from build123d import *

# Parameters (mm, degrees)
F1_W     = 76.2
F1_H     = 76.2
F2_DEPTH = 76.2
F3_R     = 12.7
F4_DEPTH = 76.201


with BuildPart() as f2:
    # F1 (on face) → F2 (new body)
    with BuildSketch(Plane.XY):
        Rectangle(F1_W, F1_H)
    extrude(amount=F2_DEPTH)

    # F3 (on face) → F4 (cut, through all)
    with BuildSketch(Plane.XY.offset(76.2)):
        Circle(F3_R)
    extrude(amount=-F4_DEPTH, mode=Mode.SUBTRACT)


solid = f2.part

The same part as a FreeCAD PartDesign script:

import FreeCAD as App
import Part
import Sketcher
Q = App.Units.Quantity


def add_polygon(sketch, points):
    """Adds a closed chain of lines whose ends are joined by coincident constraints."""
    first, n = sketch.GeometryCount, len(points)
    for a, b in zip(points, points[1:] + points[:1]):
        sketch.addGeometry(Part.LineSegment(App.Vector(*a, 0), App.Vector(*b, 0)), False)
    for i in range(n):
        sketch.addConstraint(Sketcher.Constraint("Coincident", first + i, 2, first + (i + 1) % n, 1))

doc = App.newDocument("Part")
body = doc.addObject("PartDesign::Body", "Body")

sketch1 = doc.addObject("Sketcher::SketchObject", "Sketch")
body.addObject(sketch1)
sketch1.AttachmentSupport = (doc.XY_Plane, [""])
sketch1.MapMode = "FlatFace"
add_polygon(sketch1, [(-38, 38), (-38, -38), (38, -38), (38, 38)])
sketch1.addConstraint([
    Sketcher.Constraint("Vertical", 0),
    Sketcher.Constraint("Horizontal", 1),
    Sketcher.Constraint("Vertical", 2),
    Sketcher.Constraint("Horizontal", 3),
    Sketcher.Constraint("Symmetric", 0, 2, 2, 2, -1, 1),
    Sketcher.Constraint("Equal", 3, 0),
    Sketcher.Constraint("DistanceX", 1, 1, 1, 2, Q("3 in")),
])
pad1 = doc.addObject("PartDesign::Pad", "Pad")
body.addObject(pad1)
pad1.Profile = sketch1
pad1.Length = Q("3 in")

sketch2 = doc.addObject("Sketcher::SketchObject", "Sketch001")
body.addObject(sketch2)
sketch2.AttachmentSupport = (doc.XY_Plane, [""])
sketch2.MapMode = "FlatFace"
sketch2.AttachmentOffset = App.Placement(App.Vector(0, 0, 3 * 25.4), App.Rotation())
sketch2.addGeometry(Part.Circle(App.Vector(0, 0, 0), App.Vector(0, 0, 1), 13), False)
sketch2.addConstraint([
    Sketcher.Constraint("Coincident", 0, 3, -1, 1),
    Sketcher.Constraint("Diameter", 0, Q("1 in")),
])
pocket1 = doc.addObject("PartDesign::Pocket", "Pocket")
body.addObject(pocket1)
pocket1.Profile = sketch2
pocket1.Type = "ThroughAll"

doc.recompute()
